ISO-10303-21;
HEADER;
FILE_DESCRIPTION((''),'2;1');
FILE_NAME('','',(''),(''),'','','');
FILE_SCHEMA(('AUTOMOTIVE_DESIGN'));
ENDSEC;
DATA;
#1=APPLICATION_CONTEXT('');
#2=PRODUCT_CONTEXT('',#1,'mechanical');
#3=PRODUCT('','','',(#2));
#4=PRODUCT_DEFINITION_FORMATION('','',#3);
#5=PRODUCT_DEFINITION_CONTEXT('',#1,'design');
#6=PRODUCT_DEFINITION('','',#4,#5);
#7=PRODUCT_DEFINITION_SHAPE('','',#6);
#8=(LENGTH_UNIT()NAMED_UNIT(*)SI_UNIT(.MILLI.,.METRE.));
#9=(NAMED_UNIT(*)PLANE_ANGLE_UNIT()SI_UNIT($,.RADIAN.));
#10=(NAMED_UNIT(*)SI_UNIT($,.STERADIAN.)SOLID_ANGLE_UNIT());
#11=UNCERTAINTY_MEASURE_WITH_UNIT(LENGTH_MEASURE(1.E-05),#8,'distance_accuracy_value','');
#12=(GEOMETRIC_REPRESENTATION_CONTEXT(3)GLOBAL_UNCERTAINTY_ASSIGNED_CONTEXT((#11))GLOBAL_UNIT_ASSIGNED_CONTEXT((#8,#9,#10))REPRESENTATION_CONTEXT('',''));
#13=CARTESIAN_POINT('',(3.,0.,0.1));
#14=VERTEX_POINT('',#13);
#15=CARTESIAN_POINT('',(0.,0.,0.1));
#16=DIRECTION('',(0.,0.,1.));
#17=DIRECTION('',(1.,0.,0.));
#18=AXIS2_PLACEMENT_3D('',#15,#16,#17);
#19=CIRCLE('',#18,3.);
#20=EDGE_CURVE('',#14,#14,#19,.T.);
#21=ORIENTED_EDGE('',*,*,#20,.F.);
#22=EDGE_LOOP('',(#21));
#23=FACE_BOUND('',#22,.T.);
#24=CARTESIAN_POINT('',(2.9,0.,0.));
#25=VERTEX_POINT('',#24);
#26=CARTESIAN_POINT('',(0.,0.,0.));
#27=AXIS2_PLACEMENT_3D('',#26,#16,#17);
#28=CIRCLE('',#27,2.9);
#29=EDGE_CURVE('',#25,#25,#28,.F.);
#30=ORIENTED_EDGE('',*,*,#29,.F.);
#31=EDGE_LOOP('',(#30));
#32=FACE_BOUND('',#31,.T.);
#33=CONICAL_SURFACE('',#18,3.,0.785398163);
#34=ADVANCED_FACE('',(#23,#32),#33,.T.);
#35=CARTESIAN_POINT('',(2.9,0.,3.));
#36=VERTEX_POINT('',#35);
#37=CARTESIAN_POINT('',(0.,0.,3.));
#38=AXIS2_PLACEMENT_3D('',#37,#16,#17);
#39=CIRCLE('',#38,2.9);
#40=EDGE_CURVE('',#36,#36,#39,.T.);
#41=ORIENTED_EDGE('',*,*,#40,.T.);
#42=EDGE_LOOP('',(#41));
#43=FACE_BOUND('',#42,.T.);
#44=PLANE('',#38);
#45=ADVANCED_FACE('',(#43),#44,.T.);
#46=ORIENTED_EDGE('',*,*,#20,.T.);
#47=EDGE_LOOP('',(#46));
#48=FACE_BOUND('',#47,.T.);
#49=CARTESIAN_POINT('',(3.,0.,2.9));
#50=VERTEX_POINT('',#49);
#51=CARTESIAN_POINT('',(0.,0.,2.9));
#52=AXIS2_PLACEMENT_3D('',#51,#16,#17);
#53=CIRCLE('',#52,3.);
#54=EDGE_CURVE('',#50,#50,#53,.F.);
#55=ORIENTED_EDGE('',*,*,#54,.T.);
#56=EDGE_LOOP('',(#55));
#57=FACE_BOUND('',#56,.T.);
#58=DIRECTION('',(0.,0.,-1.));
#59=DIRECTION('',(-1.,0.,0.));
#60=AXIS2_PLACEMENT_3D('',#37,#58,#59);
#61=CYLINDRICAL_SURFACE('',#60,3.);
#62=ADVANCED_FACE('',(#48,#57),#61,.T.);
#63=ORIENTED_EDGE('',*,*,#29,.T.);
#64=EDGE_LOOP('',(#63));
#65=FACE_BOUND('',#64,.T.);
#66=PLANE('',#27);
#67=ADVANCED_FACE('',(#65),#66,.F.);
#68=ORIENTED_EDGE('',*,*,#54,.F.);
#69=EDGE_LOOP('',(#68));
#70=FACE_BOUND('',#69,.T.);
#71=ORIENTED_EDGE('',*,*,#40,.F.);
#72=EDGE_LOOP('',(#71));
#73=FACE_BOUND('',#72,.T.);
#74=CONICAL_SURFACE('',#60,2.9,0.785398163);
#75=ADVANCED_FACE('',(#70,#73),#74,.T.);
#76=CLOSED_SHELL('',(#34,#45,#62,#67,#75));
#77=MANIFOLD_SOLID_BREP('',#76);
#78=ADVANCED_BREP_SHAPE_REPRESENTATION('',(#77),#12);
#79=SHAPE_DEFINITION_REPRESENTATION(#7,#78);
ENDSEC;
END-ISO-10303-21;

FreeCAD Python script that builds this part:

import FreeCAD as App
import Part
import Sketcher
from FreeCAD import Vector


def edges_at(feature, points):
    """Names of the edges that pass closest to the given points."""
    edges = feature.Shape.Edges
    near = lambda p: min(range(len(edges)), key=lambda i: edges[i].distToShape(Part.Vertex(*p))[0])
    return sorted({f"Edge{near(p) + 1}" for p in points})

doc = App.newDocument("Part")
body = doc.addObject("PartDesign::Body", "Body")

sketch1 = body.newObject("Sketcher::SketchObject", "Sketch")
sketch1.AttachmentSupport = (doc.getObject("XY_Plane"), [""])
sketch1.MapMode = "FlatFace"
sketch1.addGeometry(Part.Circle(Vector(0, 0, 0), Vector(0, 0, 1), 3), False)
sketch1.addConstraint([
    Sketcher.Constraint("Coincident", 0, 3, -1, 1),
    Sketcher.Constraint("Diameter", 0, 6.0),
])
pad1 = body.newObject("PartDesign::Pad", "Pad")
pad1.Profile = sketch1
pad1.Length = 3
doc.recompute()

chamfer = body.newObject("PartDesign::Chamfer", "Chamfer")
chamfer.Base = (pad1, edges_at(pad1, [(-3, 0, 0), (-3, 0, 3)]))
chamfer.Size = 0.1

doc.recompute()
